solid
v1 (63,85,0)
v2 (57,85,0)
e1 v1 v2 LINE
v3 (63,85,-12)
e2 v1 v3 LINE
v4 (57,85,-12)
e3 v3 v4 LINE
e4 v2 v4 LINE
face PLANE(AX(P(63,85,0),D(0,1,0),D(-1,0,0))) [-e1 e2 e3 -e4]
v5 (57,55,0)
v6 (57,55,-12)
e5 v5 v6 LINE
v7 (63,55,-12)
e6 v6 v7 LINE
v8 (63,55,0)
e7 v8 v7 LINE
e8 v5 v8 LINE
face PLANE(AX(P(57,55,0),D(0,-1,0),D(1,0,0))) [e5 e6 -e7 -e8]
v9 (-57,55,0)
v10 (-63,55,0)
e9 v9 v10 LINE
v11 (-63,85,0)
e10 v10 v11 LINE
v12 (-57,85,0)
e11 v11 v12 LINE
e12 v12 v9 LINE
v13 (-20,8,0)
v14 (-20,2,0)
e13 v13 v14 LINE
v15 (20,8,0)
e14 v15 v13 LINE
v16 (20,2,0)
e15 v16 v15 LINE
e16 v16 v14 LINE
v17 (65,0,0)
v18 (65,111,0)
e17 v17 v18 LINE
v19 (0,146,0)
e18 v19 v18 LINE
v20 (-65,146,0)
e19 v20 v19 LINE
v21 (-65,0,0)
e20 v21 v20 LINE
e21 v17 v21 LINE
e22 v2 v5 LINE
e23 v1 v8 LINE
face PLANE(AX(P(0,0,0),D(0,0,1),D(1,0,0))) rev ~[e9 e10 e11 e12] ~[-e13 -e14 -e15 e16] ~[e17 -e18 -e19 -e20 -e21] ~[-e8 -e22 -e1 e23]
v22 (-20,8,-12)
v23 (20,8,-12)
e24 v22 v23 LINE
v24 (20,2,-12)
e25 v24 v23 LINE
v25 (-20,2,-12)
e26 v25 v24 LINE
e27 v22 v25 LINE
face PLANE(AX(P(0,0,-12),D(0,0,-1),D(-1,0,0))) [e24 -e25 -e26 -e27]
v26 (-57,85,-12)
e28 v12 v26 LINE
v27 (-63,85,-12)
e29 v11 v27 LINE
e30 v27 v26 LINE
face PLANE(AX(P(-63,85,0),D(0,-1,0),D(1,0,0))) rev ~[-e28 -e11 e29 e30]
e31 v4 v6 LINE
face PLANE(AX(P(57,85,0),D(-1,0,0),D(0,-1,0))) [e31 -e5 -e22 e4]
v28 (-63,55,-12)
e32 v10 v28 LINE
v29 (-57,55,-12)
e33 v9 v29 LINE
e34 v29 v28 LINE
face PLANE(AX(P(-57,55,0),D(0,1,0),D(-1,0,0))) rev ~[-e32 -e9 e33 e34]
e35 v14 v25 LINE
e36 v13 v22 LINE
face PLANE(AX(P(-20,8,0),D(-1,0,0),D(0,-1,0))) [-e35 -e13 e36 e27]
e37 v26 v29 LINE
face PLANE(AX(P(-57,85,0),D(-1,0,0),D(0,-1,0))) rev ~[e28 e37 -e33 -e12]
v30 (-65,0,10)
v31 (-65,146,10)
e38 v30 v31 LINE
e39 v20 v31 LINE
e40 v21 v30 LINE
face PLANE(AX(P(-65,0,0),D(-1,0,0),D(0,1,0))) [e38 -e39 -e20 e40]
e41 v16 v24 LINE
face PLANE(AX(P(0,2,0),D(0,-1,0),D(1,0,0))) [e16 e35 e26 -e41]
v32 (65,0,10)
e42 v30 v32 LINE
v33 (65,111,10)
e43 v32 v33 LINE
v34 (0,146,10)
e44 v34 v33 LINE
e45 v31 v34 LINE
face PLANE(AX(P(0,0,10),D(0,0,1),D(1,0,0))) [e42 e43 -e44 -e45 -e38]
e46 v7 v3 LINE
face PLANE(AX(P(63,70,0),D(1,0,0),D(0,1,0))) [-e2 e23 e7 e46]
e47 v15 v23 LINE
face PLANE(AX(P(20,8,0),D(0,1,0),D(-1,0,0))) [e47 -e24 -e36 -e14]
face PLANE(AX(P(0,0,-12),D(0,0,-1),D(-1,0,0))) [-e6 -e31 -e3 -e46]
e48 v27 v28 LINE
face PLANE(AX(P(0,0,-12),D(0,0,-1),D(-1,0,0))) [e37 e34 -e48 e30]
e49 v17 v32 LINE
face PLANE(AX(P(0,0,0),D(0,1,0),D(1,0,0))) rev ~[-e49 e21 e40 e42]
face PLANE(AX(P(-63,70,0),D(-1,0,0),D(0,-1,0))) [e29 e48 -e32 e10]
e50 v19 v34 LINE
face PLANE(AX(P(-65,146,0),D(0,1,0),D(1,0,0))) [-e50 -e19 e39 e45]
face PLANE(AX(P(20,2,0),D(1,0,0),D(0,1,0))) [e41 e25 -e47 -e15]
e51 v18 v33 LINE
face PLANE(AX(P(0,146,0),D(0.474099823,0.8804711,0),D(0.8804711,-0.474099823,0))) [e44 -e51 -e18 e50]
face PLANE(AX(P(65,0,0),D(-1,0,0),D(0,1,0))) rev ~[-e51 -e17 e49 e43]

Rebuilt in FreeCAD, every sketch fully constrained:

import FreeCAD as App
import Part
import Sketcher

V = App.Vector
Q = App.Units.Quantity

doc = App.newDocument("Part")
body = doc.addObject("PartDesign::Body", "Body")

# Sketch on XY plane
sketch1 = body.newObject("Sketcher::SketchObject", "Sketch")
sketch1.AttachmentSupport = (doc.getObject("XY_Plane"), [""])
sketch1.MapMode = "FlatFace"
sketch1.addGeometry([
    Part.LineSegment(V(65, 111, 0), V(0, 146, 0)),  # 0
    Part.LineSegment(V(0, 146, 0), V(-65, 146, 0)),  # 1
    Part.LineSegment(V(-65, 146, 0), V(-65, 0, 0)),  # 2
    Part.LineSegment(V(-65, 0, 0), V(65, 0, 0)),  # 3
    Part.LineSegment(V(65, 0, 0), V(65, 111, 0)),  # 4
], False)
sketch1.addConstraint([
    Sketcher.Constraint("Coincident", 0, 2, 1, 1),
    Sketcher.Constraint("Coincident", 1, 2, 2, 1),
    Sketcher.Constraint("Coincident", 2, 2, 3, 1),
    Sketcher.Constraint("Coincident", 3, 2, 4, 1),
    Sketcher.Constraint("Coincident", 4, 2, 0, 1),
    Sketcher.Constraint("Horizontal", 1),
    Sketcher.Constraint("Vertical", 2),
    Sketcher.Constraint("Horizontal", 3),
    Sketcher.Constraint("Vertical", 4),
    Sketcher.Constraint("Symmetric", 2, 2, 3, 2, -1, 1),
    Sketcher.Constraint("PointOnObject", 0, 2, -2),
    Sketcher.Constraint("DistanceX", 1, 2, 1, 1, Q("65 mm")),
    Sketcher.Constraint("DistanceY", 2, 2, 2, 1, Q("146 mm")),
    Sketcher.Constraint("DistanceY", 4, 1, 4, 2, Q("111 mm")),
])
pad1 = body.newObject("PartDesign::Pad", "Pad")
pad1.Profile = sketch1
pad1.Length = 10

# Sketch on XY plane
sketch2 = body.newObject("Sketcher::SketchObject", "Sketch001")
sketch2.AttachmentSupport = (doc.getObject("XY_Plane"), [""])
sketch2.MapMode = "FlatFace"
sketch2.addGeometry([
    Part.LineSegment(V(20, 2, 0), V(-20, 2, 0)),  # 0
    Part.LineSegment(V(-20, 2, 0), V(-20, 8, 0)),  # 1
    Part.LineSegment(V(-20, 8, 0), V(20, 8, 0)),  # 2
    Part.LineSegment(V(20, 8, 0), V(20, 2, 0)),  # 3
    Part.LineSegment(V(63, 85, 0), V(63, 55, 0)),  # 4
    Part.LineSegment(V(63, 55, 0), V(57, 55, 0)),  # 5
    Part.LineSegment(V(57, 55, 0), V(57, 85, 0)),  # 6
    Part.LineSegment(V(57, 85, 0), V(63, 85, 0)),  # 7
    Part.LineSegment(V(-63, 55, 0), V(-63, 85, 0)),  # 8
    Part.LineSegment(V(-63, 85, 0), V(-57, 85, 0)),  # 9
    Part.LineSegment(V(-57, 85, 0), V(-57, 55, 0)),  # 10
    Part.LineSegment(V(-57, 55, 0), V(-63, 55, 0)),  # 11
], False)
sketch2.addConstraint([
    Sketcher.Constraint("Coincident", 0, 2, 1, 1),
    Sketcher.Constraint("Coincident", 1, 2, 2, 1),
    Sketcher.Constraint("Coincident", 2, 2, 3, 1),
    Sketcher.Constraint("Coincident", 3, 2, 0, 1),
    Sketcher.Constraint("Coincident", 4, 2, 5, 1),
    Sketcher.Constraint("Coincident", 5, 2, 6, 1),
    Sketcher.Constraint("Coincident", 6, 2, 7, 1),
    Sketcher.Constraint("Coincident", 7, 2, 4, 1),
    Sketcher.Constraint("Coincident", 8, 2, 9, 1),
    Sketcher.Constraint("Coincident", 9, 2, 10, 1),
    Sketcher.Constraint("Coincident", 10, 2, 11, 1),
    Sketcher.Constraint("Coincident", 11, 2, 8, 1),
    Sketcher.Constraint("Horizontal", 0),
    Sketcher.Constraint("Vertical", 1),
    Sketcher.Constraint("Horizontal", 2),
    Sketcher.Constraint("Vertical", 3),
    Sketcher.Constraint("Vertical", 4),
    Sketcher.Constraint("Horizontal", 5),
    Sketcher.Constraint("Vertical", 6),
    Sketcher.Constraint("Horizontal", 7),
    Sketcher.Constraint("Vertical", 8),
    Sketcher.Constraint("Horizontal", 9),
    Sketcher.Constraint("Vertical", 10),
    Sketcher.Constraint("Horizontal", 11),
    Sketcher.Constraint("Symmetric", 7, 2, 8, 2, -2),
    Sketcher.Constraint("Symmetric", 5, 2, 10, 2, -2),
    Sketcher.Constraint("Equal", 11, 1),
    Sketcher.Constraint("DistanceX", 0, 2, 0, 1, Q("40 mm")),
    Sketcher.Constraint("DistanceX", 5, 2, 5, 1, Q("6 mm")),
    Sketcher.Constraint("DistanceY", 4, 2, 4, 1, Q("30 mm")),
    Sketcher.Constraint("DistanceX", 0, 2, -1, 1, Q("20 mm")),
    Sketcher.Constraint("DistanceY", -1, 1, 0, 2, Q("2 mm")),
    Sketcher.Constraint("DistanceX", -1, 1, 4, 2, Q("63 mm")),
    Sketcher.Constraint("DistanceY", -1, 1, 4, 2, Q("55 mm")),
])
pad2 = body.newObject("PartDesign::Pad", "Pad001")
pad2.Profile = sketch2
pad2.Length = 12
pad2.Reversed = True

doc.recompute()
